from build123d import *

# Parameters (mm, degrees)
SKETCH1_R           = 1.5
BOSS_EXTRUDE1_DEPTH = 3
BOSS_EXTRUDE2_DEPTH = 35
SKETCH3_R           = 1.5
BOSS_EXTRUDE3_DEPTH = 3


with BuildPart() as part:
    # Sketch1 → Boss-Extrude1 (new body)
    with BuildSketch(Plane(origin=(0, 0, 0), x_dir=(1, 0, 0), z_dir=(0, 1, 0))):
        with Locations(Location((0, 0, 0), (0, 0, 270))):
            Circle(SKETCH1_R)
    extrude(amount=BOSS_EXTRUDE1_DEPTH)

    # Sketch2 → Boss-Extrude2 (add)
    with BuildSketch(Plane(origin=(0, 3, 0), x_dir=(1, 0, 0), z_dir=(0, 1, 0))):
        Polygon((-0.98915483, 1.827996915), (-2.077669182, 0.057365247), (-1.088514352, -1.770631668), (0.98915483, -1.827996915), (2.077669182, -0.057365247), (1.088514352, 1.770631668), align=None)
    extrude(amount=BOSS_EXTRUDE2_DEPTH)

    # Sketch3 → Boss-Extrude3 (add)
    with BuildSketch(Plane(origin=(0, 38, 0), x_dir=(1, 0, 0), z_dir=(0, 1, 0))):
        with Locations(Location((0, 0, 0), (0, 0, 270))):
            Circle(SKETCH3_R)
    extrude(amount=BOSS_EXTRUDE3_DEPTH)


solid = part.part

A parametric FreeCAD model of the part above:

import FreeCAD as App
import Part
import Sketcher

doc = App.newDocument("Part")
body = doc.addObject("PartDesign::Body", "Body")

sketch1 = body.newObject("Sketcher::SketchObject", "Sketch")
sketch1.AttachmentSupport = (doc.getObject("XZ_Plane"), [""])
sketch1.MapMode = "FlatFace"
sketch1.addGeometry(Part.Circle(App.Vector(0, 0, 0), App.Vector(0, 0, 1), 1.5), False)
sketch1.addConstraint([
    Sketcher.Constraint("Coincident", 0, 3, -1, 1),
    Sketcher.Constraint("Diameter", 0, 3.0),
])
pad1 = body.newObject("PartDesign::Pad", "Pad")
pad1.Profile = sketch1
pad1.Length = 3
pad1.Reversed = True

sketch2 = body.newObject("Sketcher::SketchObject", "Sketch001")
sketch2.AttachmentSupport = (doc.getObject("XZ_Plane"), [""])
sketch2.MapMode = "FlatFace"
sketch2.AttachmentOffset = App.Placement(App.Vector(0, 0, -3), App.Rotation())
sketch2.addGeometry([
    Part.LineSegment(App.Vector(-1, -1.8, 0), App.Vector(-2.1, -0.1, 0)),
    Part.LineSegment(App.Vector(-2.1, -0.1, 0), App.Vector(-1.1, 1.8, 0)),
    Part.LineSegment(App.Vector(-1.1, 1.8, 0), App.Vector(1, 1.8, 0)),
    Part.LineSegment(App.Vector(1, 1.8, 0), App.Vector(2.1, 0.1, 0)),
    Part.LineSegment(App.Vector(2.1, 0.1, 0), App.Vector(1.1, -1.8, 0)),
    Part.LineSegment(App.Vector(1.1, -1.8, 0), App.Vector(-1, -1.8, 0)),
], False)
sketch2.addConstraint([
    Sketcher.Constraint("Coincident", 0, 2, 1, 1),
    Sketcher.Constraint("Coincident", 1, 2, 2, 1),
    Sketcher.Constraint("Coincident", 2, 2, 3, 1),
    Sketcher.Constraint("Coincident", 3, 2, 4, 1),
    Sketcher.Constraint("Coincident", 4, 2, 5, 1),
    Sketcher.Constraint("Coincident", 5, 2, 0, 1),
    Sketcher.Constraint("Symmetric", 0, 2, 3, 2, -1, 1),
    Sketcher.Constraint("Symmetric", 1, 2, 4, 2, -1, 1),
    Sketcher.Constraint("Symmetric", 2, 2, 5, 2, -1, 1),
    Sketcher.Constraint("Equal", 0, 1),
    Sketcher.Constraint("Equal", 1, 2),
    Sketcher.Constraint("Distance", 0, 2.078461),
    Sketcher.Constraint("DistanceX", 0, 2, -1, 1, 2.077669),
    Sketcher.Constraint("DistanceY", -1, 1, 1, 2, 1.770632),
    Sketcher.Constraint("DistanceY", 3, 2, 2, 2, 1.770632),
])
pad2 = body.newObject("PartDesign::Pad", "Pad001")
pad2.Profile = sketch2
pad2.Length = 35
pad2.Reversed = True

sketch3 = body.newObject("Sketcher::SketchObject", "Sketch002")
sketch3.AttachmentSupport = (doc.getObject("XZ_Plane"), [""])
sketch3.MapMode = "FlatFace"
sketch3.AttachmentOffset = App.Placement(App.Vector(0, 0, -38), App.Rotation())
sketch3.addGeometry(Part.Circle(App.Vector(0, 0, 0), App.Vector(0, 0, 1), 1.5), False)
sketch3.addConstraint([
    Sketcher.Constraint("Coincident", 0, 3, -1, 1),
    Sketcher.Constraint("Diameter", 0, 3.0),
])
pad3 = body.newObject("PartDesign::Pad", "Pad002")
pad3.Profile = sketch3
pad3.Length = 3
pad3.Reversed = True

doc.recompute()
